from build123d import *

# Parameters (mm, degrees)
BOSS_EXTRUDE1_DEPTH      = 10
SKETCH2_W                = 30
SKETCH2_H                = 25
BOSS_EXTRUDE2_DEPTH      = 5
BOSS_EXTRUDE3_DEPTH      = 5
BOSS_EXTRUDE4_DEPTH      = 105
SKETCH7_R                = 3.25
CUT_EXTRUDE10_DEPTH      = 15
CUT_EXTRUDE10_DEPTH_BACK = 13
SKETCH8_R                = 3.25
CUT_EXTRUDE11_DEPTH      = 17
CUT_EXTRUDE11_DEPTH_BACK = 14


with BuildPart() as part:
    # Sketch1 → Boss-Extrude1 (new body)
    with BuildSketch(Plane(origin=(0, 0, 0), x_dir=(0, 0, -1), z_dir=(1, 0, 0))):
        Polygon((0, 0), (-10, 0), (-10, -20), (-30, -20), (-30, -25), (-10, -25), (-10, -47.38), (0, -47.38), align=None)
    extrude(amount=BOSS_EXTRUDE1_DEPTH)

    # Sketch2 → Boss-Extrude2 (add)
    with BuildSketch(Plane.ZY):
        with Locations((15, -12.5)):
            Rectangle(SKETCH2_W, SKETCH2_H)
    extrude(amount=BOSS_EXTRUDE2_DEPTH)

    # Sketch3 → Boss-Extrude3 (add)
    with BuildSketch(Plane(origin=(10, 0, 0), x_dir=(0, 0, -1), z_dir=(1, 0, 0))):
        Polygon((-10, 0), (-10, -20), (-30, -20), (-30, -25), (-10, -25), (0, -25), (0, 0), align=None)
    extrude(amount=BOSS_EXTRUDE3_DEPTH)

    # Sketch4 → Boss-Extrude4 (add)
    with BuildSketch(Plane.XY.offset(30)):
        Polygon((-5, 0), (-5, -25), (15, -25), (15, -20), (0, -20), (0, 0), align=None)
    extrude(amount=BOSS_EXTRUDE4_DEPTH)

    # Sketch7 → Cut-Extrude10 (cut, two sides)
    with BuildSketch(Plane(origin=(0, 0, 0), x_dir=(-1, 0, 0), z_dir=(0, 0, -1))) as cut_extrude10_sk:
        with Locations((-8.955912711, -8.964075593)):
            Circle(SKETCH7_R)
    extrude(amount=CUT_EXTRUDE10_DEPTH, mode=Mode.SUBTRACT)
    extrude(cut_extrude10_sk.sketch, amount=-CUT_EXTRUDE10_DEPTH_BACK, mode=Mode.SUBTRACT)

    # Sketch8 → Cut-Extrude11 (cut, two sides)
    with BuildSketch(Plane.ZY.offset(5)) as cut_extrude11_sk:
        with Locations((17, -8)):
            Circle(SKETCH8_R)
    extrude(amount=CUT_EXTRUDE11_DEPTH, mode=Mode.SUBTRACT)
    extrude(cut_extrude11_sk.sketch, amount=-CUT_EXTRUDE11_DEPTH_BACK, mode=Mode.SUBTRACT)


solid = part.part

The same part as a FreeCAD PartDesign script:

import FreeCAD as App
import Part
import Sketcher
Q = App.Units.Quantity

doc = App.newDocument("Part")
body = doc.addObject("PartDesign::Body", "Body")

# Sketch on YZ plane
sketch1 = body.newObject("Sketcher::SketchObject", "Sketch")
sketch1.AttachmentSupport = (doc.getObject("YZ_Plane"), [""])
sketch1.MapMode = "FlatFace"
sketch1.addGeometry([
    Part.LineSegment(App.Vector(0, 0, 0), App.Vector(0, 10, 0)),  # 0
    Part.LineSegment(App.Vector(0, 10, 0), App.Vector(-20, 10, 0)),  # 1
    Part.LineSegment(App.Vector(-20, 10, 0), App.Vector(-20, 30, 0)),  # 2
    Part.LineSegment(App.Vector(-20, 30, 0), App.Vector(-25, 30, 0)),  # 3
    Part.LineSegment(App.Vector(-25, 30, 0), App.Vector(-25, 10, 0)),  # 4
    Part.LineSegment(App.Vector(-25, 10, 0), App.Vector(-47.38, 10, 0)),  # 5
    Part.LineSegment(App.Vector(-47.38, 10, 0), App.Vector(-47.38, 0, 0)),  # 6
    Part.LineSegment(App.Vector(-47.38, 0, 0), App.Vector(0, 0, 0)),  # 7
], False)
sketch1.addConstraint([
    Sketcher.Constraint("Coincident", 0, 2, 1, 1),
    Sketcher.Constraint("Coincident", 1, 2, 2, 1),
    Sketcher.Constraint("Coincident", 2, 2, 3, 1),
    Sketcher.Constraint("Coincident", 3, 2, 4, 1),
    Sketcher.Constraint("Coincident", 4, 2, 5, 1),
    Sketcher.Constraint("Coincident", 5, 2, 6, 1),
    Sketcher.Constraint("Coincident", 6, 2, 7, 1),
    Sketcher.Constraint("Coincident", 7, 2, 0, 1),
    Sketcher.Constraint("Vertical", 0),
    Sketcher.Constraint("Horizontal", 1),
    Sketcher.Constraint("Vertical", 2),
    Sketcher.Constraint("Horizontal", 3),
    Sketcher.Constraint("Vertical", 4),
    Sketcher.Constraint("Horizontal", 5),
    Sketcher.Constraint("Vertical", 6),
    Sketcher.Constraint("Horizontal", 7),
    Sketcher.Constraint("Coincident", 7, 2, -1, 1),
    Sketcher.Constraint("Horizontal", 1, 2, 4, 2),
    Sketcher.Constraint("Equal", 1, 2),
    Sketcher.Constraint("DistanceX", 1, 2, 1, 1, Q("20 mm")),
    Sketcher.Constraint("DistanceX", 3, 2, 3, 1, Q("5 mm")),
    Sketcher.Constraint("DistanceY", 0, 1, 0, 2, Q("10 mm")),
    Sketcher.Constraint("DistanceX", 5, 2, 5, 1, Q("22.38 mm")),
])
pad1 = body.newObject("PartDesign::Pad", "Pad")
pad1.Profile = sketch1
pad1.Length = 10

# Sketch on YZ plane
sketch2 = body.newObject("Sketcher::SketchObject", "Sketch001")
sketch2.AttachmentSupport = (doc.getObject("YZ_Plane"), [""])
sketch2.MapMode = "FlatFace"
sketch2.addGeometry([
    Part.LineSegment(App.Vector(0, 0, 0), App.Vector(-25, 0, 0)),
    Part.LineSegment(App.Vector(-25, 0, 0), App.Vector(-25, 30, 0)),
    Part.LineSegment(App.Vector(-25, 30, 0), App.Vector(0, 30, 0)),
    Part.LineSegment(App.Vector(0, 30, 0), App.Vector(0, 0, 0)),
], False)
sketch2.addConstraint([
    Sketcher.Constraint("Coincident", 0, 2, 1, 1),
    Sketcher.Constraint("Coincident", 1, 2, 2, 1),
    Sketcher.Constraint("Coincident", 2, 2, 3, 1),
    Sketcher.Constraint("Coincident", 3, 2, 0, 1),
    Sketcher.Constraint("Horizontal", 0),
    Sketcher.Constraint("Vertical", 1),
    Sketcher.Constraint("Horizontal", 2),
    Sketcher.Constraint("Vertical", 3),
    Sketcher.Constraint("Coincident", 3, 2, -1, 1),
    Sketcher.Constraint("DistanceX", 0, 2, 0, 1, Q("25 mm")),
    Sketcher.Constraint("DistanceY", 1, 1, 1, 2, Q("30 mm")),
])
pad2 = body.newObject("PartDesign::Pad", "Pad001")
pad2.Profile = sketch2
pad2.Length = 5
pad2.Reversed = True

# Sketch on YZ plane
sketch3 = body.newObject("Sketcher::SketchObject", "Sketch002")
sketch3.AttachmentSupport = (doc.getObject("YZ_Plane"), [""])
sketch3.MapMode = "FlatFace"
sketch3.AttachmentOffset = App.Placement(App.Vector(0, 0, 10), App.Rotation())
sketch3.addGeometry([
    Part.LineSegment(App.Vector(0, 10, 0), App.Vector(-20, 10, 0)),  # 0
    Part.LineSegment(App.Vector(-20, 10, 0), App.Vector(-20, 30, 0)),  # 1
    Part.LineSegment(App.Vector(-20, 30, 0), App.Vector(-25, 30, 0)),  # 2
    Part.LineSegment(App.Vector(-25, 30, 0), App.Vector(-25, 0, 0)),  # 3
    Part.LineSegment(App.Vector(-25, 0, 0), App.Vector(0, 0, 0)),  # 4
    Part.LineSegment(App.Vector(0, 0, 0), App.Vector(0, 10, 0)),  # 5
], False)
sketch3.addConstraint([
    Sketcher.Constraint("Coincident", 0, 2, 1, 1),
    Sketcher.Constraint("Coincident", 1, 2, 2, 1),
    Sketcher.Constraint("Coincident", 2, 2, 3, 1),
    Sketcher.Constraint("Coincident", 3, 2, 4, 1),
    Sketcher.Constraint("Coincident", 4, 2, 5, 1),
    Sketcher.Constraint("Coincident", 5, 2, 0, 1),
    Sketcher.Constraint("Horizontal", 0),
    Sketcher.Constraint("Vertical", 1),
    Sketcher.Constraint("Horizontal", 2),
    Sketcher.Constraint("Vertical", 3),
    Sketcher.Constraint("Horizontal", 4),
    Sketcher.Constraint("Vertical", 5),
    Sketcher.Constraint("Coincident", 4, 2, -1, 1),
    Sketcher.Constraint("Equal", 0, 1),
    Sketcher.Constraint("DistanceX", 0, 2, 0, 1, Q("20 mm")),
    Sketcher.Constraint("DistanceX", 2, 2, 2, 1, Q("5 mm")),
    Sketcher.Constraint("DistanceY", 3, 2, 3, 1, Q("30 mm")),
])
pad3 = body.newObject("PartDesign::Pad", "Pad002")
pad3.Profile = sketch3
pad3.Length = 5

# Sketch on XY plane
sketch4 = body.newObject("Sketcher::SketchObject", "Sketch003")
sketch4.AttachmentSupport = (doc.getObject("XY_Plane"), [""])
sketch4.MapMode = "FlatFace"
sketch4.AttachmentOffset = App.Placement(App.Vector(0, 0, 30), App.Rotation())
sketch4.addGeometry([
    Part.LineSegment(App.Vector(-5, 0, 0), App.Vector(-5, -25, 0)),  # 0
    Part.LineSegment(App.Vector(-5, -25, 0), App.Vector(15, -25, 0)),  # 1
    Part.LineSegment(App.Vector(15, -25, 0), App.Vector(15, -20, 0)),  # 2
    Part.LineSegment(App.Vector(15, -20, 0), App.Vector(0, -20, 0)),  # 3
    Part.LineSegment(App.Vector(0, -20, 0), App.Vector(0, 0, 0)),  # 4
    Part.LineSegment(App.Vector(0, 0, 0), App.Vector(-5, 0, 0)),  # 5
], False)
sketch4.addConstraint([
    Sketcher.Constraint("Coincident", 0, 2, 1, 1),
    Sketcher.Constraint("Coincident", 1, 2, 2, 1),
    Sketcher.Constraint("Coincident", 2, 2, 3, 1),
    Sketcher.Constraint("Coincident", 3, 2, 4, 1),
    Sketcher.Constraint("Coincident", 4, 2, 5, 1),
    Sketcher.Constraint("Coincident", 5, 2, 0, 1),
    Sketcher.Constraint("Vertical", 0),
    Sketcher.Constraint("Horizontal", 1),
    Sketcher.Constraint("Vertical", 2),
    Sketcher.Constraint("Horizontal", 3),
    Sketcher.Constraint("Vertical", 4),
    Sketcher.Constraint("Horizontal", 5),
    Sketcher.Constraint("Coincident", 4, 2, -1, 1),
    Sketcher.Constraint("Equal", 5, 2),
    Sketcher.Constraint("Equal", 1, 4),
    Sketcher.Constraint("DistanceX", 1, 1, 1, 2, Q("20 mm")),
    Sketcher.Constraint("DistanceX", 3, 2, 3, 1, Q("15 mm")),
])
pad4 = body.newObject("PartDesign::Pad", "Pad003")
pad4.Profile = sketch4
pad4.Length = 105

# Sketch on XY plane
sketch5 = body.newObject("Sketcher::SketchObject", "Sketch004")
sketch5.AttachmentSupport = (doc.getObject("XY_Plane"), [""])
sketch5.MapMode = "FlatFace"
sketch5.addGeometry(Part.Circle(App.Vector(8.955913, -8.964076, 0), App.Vector(0, 0, 1), 3.25), False)
sketch5.addConstraint([
    Sketcher.Constraint("Diameter", 0, Q("6.5 mm")),
    Sketcher.Constraint("DistanceX", -1, 1, 0, 3, Q("8.955913 mm")),
    Sketcher.Constraint("DistanceY", 0, 3, -1, 1, Q("8.964076 mm")),
])
pocket1 = body.newObject("PartDesign::Pocket", "Pocket")
pocket1.Profile = sketch5
pocket1.Type = "ThroughAll"
pocket1.Midplane = True

# Sketch on YZ plane
sketch6 = body.newObject("Sketcher::SketchObject", "Sketch005")
sketch6.AttachmentSupport = (doc.getObject("YZ_Plane"), [""])
sketch6.MapMode = "FlatFace"
sketch6.AttachmentOffset = App.Placement(App.Vector(0, 0, -5), App.Rotation())
sketch6.addGeometry(Part.Circle(App.Vector(-8, 17, 0), App.Vector(0, 0, 1), 3.25), False)
sketch6.addConstraint([
    Sketcher.Constraint("Diameter", 0, Q("6.5 mm")),
    Sketcher.Constraint("DistanceX", 0, 3, -1, 1, Q("8 mm")),
    Sketcher.Constraint("DistanceY", -1, 1, 0, 3, Q("17 mm")),
])
pocket2 = body.newObject("PartDesign::Pocket", "Pocket001")
pocket2.Profile = sketch6
pocket2.Type = "ThroughAll"
pocket2.Midplane = True

doc.recompute()
